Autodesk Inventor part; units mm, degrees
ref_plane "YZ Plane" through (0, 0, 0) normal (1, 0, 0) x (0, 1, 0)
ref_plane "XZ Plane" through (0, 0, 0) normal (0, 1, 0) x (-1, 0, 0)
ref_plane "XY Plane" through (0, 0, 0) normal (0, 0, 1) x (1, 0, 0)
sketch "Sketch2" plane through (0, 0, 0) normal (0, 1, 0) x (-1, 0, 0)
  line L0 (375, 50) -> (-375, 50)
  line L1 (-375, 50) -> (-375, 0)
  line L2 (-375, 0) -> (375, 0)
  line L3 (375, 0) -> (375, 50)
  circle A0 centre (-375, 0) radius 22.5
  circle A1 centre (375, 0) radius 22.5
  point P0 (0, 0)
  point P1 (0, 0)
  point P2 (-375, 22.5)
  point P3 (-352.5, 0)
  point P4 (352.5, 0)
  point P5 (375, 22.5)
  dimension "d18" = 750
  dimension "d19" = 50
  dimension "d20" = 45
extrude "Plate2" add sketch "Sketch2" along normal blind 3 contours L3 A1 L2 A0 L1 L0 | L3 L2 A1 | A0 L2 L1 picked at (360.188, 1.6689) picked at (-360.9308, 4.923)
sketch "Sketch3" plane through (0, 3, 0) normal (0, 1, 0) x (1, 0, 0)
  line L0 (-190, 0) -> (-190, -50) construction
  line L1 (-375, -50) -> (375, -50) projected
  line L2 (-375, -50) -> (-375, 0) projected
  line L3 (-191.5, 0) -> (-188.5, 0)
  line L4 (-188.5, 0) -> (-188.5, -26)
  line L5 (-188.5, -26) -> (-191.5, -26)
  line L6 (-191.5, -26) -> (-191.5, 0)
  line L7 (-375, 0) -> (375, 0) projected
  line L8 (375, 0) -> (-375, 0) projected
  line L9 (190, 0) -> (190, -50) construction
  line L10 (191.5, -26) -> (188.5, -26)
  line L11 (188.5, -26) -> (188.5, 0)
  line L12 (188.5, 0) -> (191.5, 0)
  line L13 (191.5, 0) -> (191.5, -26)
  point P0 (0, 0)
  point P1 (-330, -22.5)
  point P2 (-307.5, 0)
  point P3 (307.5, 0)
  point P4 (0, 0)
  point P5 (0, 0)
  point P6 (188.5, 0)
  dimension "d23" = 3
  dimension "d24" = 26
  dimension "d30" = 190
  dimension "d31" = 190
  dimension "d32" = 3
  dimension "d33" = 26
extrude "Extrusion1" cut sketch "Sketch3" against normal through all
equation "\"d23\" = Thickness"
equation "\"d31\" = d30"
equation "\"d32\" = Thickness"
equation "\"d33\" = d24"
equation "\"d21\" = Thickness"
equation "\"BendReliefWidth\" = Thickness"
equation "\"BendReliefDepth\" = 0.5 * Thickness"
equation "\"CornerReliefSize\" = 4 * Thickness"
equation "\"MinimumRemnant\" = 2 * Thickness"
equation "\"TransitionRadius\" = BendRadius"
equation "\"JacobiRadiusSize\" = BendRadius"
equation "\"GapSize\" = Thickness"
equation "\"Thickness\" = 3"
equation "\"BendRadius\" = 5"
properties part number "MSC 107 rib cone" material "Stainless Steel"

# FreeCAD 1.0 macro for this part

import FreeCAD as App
import Part
import Sketcher

doc = App.newDocument("Part")
body = doc.addObject("PartDesign::Body", "Body")

# Sketch on XZ plane
sketch1 = body.newObject("Sketcher::SketchObject", "Sketch")
sketch1.AttachmentSupport = (doc.getObject("XZ_Plane"), [""])
sketch1.MapMode = "FlatFace"
sketch1.addGeometry(Part.LineSegment(App.Vector(-375, 50, 0), App.Vector(375, 50, 0)), False)
sketch1.addGeometry(Part.LineSegment(App.Vector(375, 50, 0), App.Vector(375, 0, 0)), False)
sketch1.addGeometry(Part.LineSegment(App.Vector(375, 0, 0), App.Vector(-375, 0, 0)), False)
sketch1.addGeometry(Part.LineSegment(App.Vector(-375, 0, 0), App.Vector(-375, 50, 0)), False)
sketch1.addConstraint(Sketcher.Constraint("Coincident", 0, 2, 1, 1))
sketch1.addConstraint(Sketcher.Constraint("Coincident", 1, 2, 2, 1))
sketch1.addConstraint(Sketcher.Constraint("Coincident", 2, 2, 3, 1))
sketch1.addConstraint(Sketcher.Constraint("Coincident", 3, 2, 0, 1))
sketch1.addConstraint(Sketcher.Constraint("Horizontal", 0))
sketch1.addConstraint(Sketcher.Constraint("Vertical", 1))
sketch1.addConstraint(Sketcher.Constraint("Horizontal", 2))
sketch1.addConstraint(Sketcher.Constraint("Vertical", 3))
sketch1.addConstraint(Sketcher.Constraint("Symmetric", 1, 2, 2, 2, -1, 1))
sketch1.addConstraint(Sketcher.Constraint("DistanceX", 0, 1, 0, 2, 750.0))
sketch1.addConstraint(Sketcher.Constraint("DistanceY", 1, 2, 1, 1, 50.0))
pad1 = body.newObject("PartDesign::Pad", "Pad")
pad1.Profile = sketch1
pad1.Length = 3
pad1.Reversed = True

# Sketch on XZ plane
sketch2 = body.newObject("Sketcher::SketchObject", "Sketch001")
sketch2.AttachmentSupport = (doc.getObject("XZ_Plane"), [""])
sketch2.MapMode = "FlatFace"
sketch2.AttachmentOffset = App.Placement(App.Vector(0, 0, -3), App.Rotation())
sketch2.addGeometry(Part.LineSegment(App.Vector(191.5, 0, 0), App.Vector(188.5, 0, 0)), False)
sketch2.addGeometry(Part.LineSegment(App.Vector(188.5, 0, 0), App.Vector(188.5, 26, 0)), False)
sketch2.addGeometry(Part.LineSegment(App.Vector(188.5, 26, 0), App.Vector(191.5, 26, 0)), False)
sketch2.addGeometry(Part.LineSegment(App.Vector(191.5, 26, 0), App.Vector(191.5, 0, 0)), False)
sketch2.addGeometry(Part.LineSegment(App.Vector(-188.5, 0, 0), App.Vector(-191.5, 0, 0)), False)
sketch2.addGeometry(Part.LineSegment(App.Vector(-191.5, 0, 0), App.Vector(-191.5, 26, 0)), False)
sketch2.addGeometry(Part.LineSegment(App.Vector(-191.5, 26, 0), App.Vector(-188.5, 26, 0)), False)
sketch2.addGeometry(Part.LineSegment(App.Vector(-188.5, 26, 0), App.Vector(-188.5, 0, 0)), False)
sketch2.addConstraint(Sketcher.Constraint("Coincident", 0, 2, 1, 1))
sketch2.addConstraint(Sketcher.Constraint("Coincident", 1, 2, 2, 1))
sketch2.addConstraint(Sketcher.Constraint("Coincident", 2, 2, 3, 1))
sketch2.addConstraint(Sketcher.Constraint("Coincident", 3, 2, 0, 1))
sketch2.addConstraint(Sketcher.Constraint("Coincident", 4, 2, 5, 1))
sketch2.addConstraint(Sketcher.Constraint("Coincident", 5, 2, 6, 1))
sketch2.addConstraint(Sketcher.Constraint("Coincident", 6, 2, 7, 1))
sketch2.addConstraint(Sketcher.Constraint("Coincident", 7, 2, 4, 1))
sketch2.addConstraint(Sketcher.Constraint("Horizontal", 0))
sketch2.addConstraint(Sketcher.Constraint("Vertical", 1))
sketch2.addConstraint(Sketcher.Constraint("Horizontal", 2))
sketch2.addConstraint(Sketcher.Constraint("Vertical", 3))
sketch2.addConstraint(Sketcher.Constraint("Horizontal", 4))
sketch2.addConstraint(Sketcher.Constraint("Vertical", 5))
sketch2.addConstraint(Sketcher.Constraint("Horizontal", 6))
sketch2.addConstraint(Sketcher.Constraint("Vertical", 7))
sketch2.addConstraint(Sketcher.Constraint("Symmetric", 3, 2, 4, 2, -1, 1))
sketch2.addConstraint(Sketcher.Constraint("Symmetric", 1, 2, 6, 2, -2))
sketch2.addConstraint(Sketcher.Constraint("PointOnObject", 0, 2, -1))
sketch2.addConstraint(Sketcher.Constraint("DistanceX", 0, 2, 0, 1, 3.0))
sketch2.addConstraint(Sketcher.Constraint("DistanceY", 1, 1, 1, 2, 26.0))
sketch2.addConstraint(Sketcher.Constraint("DistanceX", 4, 2, 0, 2, 380.0))
pocket1 = body.newObject("PartDesign::Pocket", "Pocket")
pocket1.Profile = sketch2
pocket1.Type = "ThroughAll"
pocket1.Reversed = True

doc.recompute()
